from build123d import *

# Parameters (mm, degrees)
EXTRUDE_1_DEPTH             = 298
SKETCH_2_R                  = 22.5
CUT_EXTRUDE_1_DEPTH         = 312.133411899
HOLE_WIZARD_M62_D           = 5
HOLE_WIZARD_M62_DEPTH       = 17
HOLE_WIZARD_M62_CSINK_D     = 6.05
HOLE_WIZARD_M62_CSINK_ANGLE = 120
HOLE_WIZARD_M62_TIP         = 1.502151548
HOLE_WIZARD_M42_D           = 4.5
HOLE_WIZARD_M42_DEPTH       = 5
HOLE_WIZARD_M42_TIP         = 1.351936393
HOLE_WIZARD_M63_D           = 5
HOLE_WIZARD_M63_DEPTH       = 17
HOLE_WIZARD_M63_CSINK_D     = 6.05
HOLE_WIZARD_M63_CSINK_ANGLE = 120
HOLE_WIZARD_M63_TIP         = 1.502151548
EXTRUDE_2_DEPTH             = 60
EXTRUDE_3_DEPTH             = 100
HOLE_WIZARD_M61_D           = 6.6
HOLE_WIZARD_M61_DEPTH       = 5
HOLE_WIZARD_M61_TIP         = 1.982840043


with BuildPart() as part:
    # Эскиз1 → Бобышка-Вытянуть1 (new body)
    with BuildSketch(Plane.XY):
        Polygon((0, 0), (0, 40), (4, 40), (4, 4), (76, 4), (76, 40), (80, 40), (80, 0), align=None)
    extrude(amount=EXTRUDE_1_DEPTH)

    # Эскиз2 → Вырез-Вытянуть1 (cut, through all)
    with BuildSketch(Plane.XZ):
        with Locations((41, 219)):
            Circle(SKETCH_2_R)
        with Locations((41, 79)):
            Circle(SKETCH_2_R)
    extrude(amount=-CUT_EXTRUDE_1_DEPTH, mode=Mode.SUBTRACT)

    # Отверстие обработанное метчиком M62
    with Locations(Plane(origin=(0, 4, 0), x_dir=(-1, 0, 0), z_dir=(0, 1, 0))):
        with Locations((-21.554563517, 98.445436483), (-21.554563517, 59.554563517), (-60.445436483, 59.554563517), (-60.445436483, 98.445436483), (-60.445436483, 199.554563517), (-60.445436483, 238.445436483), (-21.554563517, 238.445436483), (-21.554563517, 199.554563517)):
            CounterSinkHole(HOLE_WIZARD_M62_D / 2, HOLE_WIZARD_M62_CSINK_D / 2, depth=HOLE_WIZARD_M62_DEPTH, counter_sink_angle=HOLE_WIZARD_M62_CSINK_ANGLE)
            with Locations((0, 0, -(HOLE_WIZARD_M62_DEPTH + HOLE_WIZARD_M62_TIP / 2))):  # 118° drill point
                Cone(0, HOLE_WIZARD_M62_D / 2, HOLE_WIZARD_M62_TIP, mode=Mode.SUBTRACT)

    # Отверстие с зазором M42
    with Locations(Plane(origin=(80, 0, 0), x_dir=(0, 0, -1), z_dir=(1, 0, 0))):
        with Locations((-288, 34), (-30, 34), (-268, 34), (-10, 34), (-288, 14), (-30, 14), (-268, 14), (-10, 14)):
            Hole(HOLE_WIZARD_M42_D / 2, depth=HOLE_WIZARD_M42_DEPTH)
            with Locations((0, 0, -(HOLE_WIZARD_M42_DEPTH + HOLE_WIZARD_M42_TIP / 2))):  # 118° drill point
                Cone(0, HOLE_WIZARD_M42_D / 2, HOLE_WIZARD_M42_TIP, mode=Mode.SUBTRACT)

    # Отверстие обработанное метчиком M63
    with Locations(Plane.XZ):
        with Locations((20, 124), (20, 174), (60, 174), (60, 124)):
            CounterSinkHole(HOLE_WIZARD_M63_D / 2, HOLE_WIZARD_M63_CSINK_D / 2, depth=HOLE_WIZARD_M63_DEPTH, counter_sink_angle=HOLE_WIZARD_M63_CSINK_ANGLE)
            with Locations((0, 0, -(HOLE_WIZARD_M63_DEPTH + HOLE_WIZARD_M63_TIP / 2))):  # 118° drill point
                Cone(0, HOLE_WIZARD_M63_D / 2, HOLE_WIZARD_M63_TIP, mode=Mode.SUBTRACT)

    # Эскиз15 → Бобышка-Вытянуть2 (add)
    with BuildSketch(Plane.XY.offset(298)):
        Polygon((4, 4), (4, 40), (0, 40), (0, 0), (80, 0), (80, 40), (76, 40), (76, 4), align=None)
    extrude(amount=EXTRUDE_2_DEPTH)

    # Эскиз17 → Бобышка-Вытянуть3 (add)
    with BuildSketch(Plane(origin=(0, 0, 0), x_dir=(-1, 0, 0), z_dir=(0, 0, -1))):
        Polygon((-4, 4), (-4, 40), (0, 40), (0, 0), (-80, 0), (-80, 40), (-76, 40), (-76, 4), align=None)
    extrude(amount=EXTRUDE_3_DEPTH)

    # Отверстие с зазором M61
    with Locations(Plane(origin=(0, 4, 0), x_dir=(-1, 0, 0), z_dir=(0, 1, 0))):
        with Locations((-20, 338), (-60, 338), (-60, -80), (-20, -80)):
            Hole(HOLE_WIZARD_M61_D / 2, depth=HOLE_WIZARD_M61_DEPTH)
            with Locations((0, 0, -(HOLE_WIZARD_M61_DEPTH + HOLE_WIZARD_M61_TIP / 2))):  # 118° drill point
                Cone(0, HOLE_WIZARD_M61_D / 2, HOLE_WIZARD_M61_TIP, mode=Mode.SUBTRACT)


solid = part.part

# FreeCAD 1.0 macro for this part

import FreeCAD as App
import Part
import Sketcher
from FreeCAD import Vector

doc = App.newDocument("Part")
params = doc.addObject("Spreadsheet::Sheet", "Params")
for row, (alias, value) in enumerate([
    ("sketch1_width", "80 mm"),
    ("sketch1_width2", "4 mm"),
    ("sketch1_height", "40 mm"),
    ("sketch1_height2", "36 mm"),
    ("pad1_length", "298 mm"),
    ("sketch2_diameter", "45 mm"),
    ("sketch3_diameter", "5 mm"),
    ("hole_diameter", "5 mm"),
    ("hole_depth", "17 mm"),
    ("hole_csink_diameter", "6.05 mm"),
    ("sketch4_diameter", "4.5 mm"),
    ("hole2_diameter", "4.5 mm"),
    ("hole2_depth", "5 mm"),
    ("sketch5_diameter", "5 mm"),
    ("hole3_diameter", "5 mm"),
    ("hole3_depth", "17 mm"),
    ("hole3_csink_diameter", "6.05 mm"),
    ("sketch6_width", "4 mm"),
    ("sketch6_width2", "80 mm"),
    ("sketch6_height", "36 mm"),
    ("sketch6_height2", "40 mm"),
    ("pad2_length", "60 mm"),
    ("sketch7_width", "72 mm"),
    ("sketch7_width2", "4 mm"),
    ("sketch7_height", "36 mm"),
    ("sketch7_height2", "40 mm"),
    ("pad3_length", "100 mm"),
    ("sketch8_diameter", "6.6 mm"),
    ("hole4_diameter", "6.6 mm"),
    ("hole4_depth", "5 mm"),
], start=1):
    params.set(f"A{row}", alias)
    params.set(f"B{row}", "=" + value)
    params.setAlias(f"B{row}", alias)

body = doc.addObject("PartDesign::Body", "Body")

sketch1 = doc.addObject("Sketcher::SketchObject", "Sketch")
body.addObject(sketch1)
sketch1.AttachmentSupport = (doc.XY_Plane, [""])
sketch1.MapMode = "FlatFace"
sketch1.addGeometry(Part.LineSegment(Vector(0, 40, 0), Vector(0, 0, 0)), False)
sketch1.addGeometry(Part.LineSegment(Vector(0, 0, 0), Vector(80, 0, 0)), False)
sketch1.addGeometry(Part.LineSegment(Vector(80, 0, 0), Vector(80, 40, 0)), False)
sketch1.addGeometry(Part.LineSegment(Vector(80, 40, 0), Vector(76, 40, 0)), False)
sketch1.addGeometry(Part.LineSegment(Vector(76, 40, 0), Vector(76, 4, 0)), False)
sketch1.addGeometry(Part.LineSegment(Vector(76, 4, 0), Vector(4, 4, 0)), False)
sketch1.addGeometry(Part.LineSegment(Vector(4, 4, 0), Vector(4, 40, 0)), False)
sketch1.addGeometry(Part.LineSegment(Vector(4, 40, 0), Vector(0, 40, 0)), False)
sketch1.addConstraint(Sketcher.Constraint("Coincident", 0, 2, 1, 1))
sketch1.addConstraint(Sketcher.Constraint("Coincident", 1, 2, 2, 1))
sketch1.addConstraint(Sketcher.Constraint("Coincident", 2, 2, 3, 1))
sketch1.addConstraint(Sketcher.Constraint("Coincident", 3, 2, 4, 1))
sketch1.addConstraint(Sketcher.Constraint("Coincident", 4, 2, 5, 1))
sketch1.addConstraint(Sketcher.Constraint("Coincident", 5, 2, 6, 1))
sketch1.addConstraint(Sketcher.Constraint("Coincident", 6, 2, 7, 1))
sketch1.addConstraint(Sketcher.Constraint("Coincident", 7, 2, 0, 1))
sketch1.addConstraint(Sketcher.Constraint("Vertical", 0))
sketch1.addConstraint(Sketcher.Constraint("Horizontal", 1))
sketch1.addConstraint(Sketcher.Constraint("Vertical", 2))
sketch1.addConstraint(Sketcher.Constraint("Horizontal", 3))
sketch1.addConstraint(Sketcher.Constraint("Vertical", 4))
sketch1.addConstraint(Sketcher.Constraint("Horizontal", 5))
sketch1.addConstraint(Sketcher.Constraint("Vertical", 6))
sketch1.addConstraint(Sketcher.Constraint("Horizontal", 7))
sketch1.addConstraint(Sketcher.Constraint("Coincident", 0, 2, -1, 1))
sketch1.addConstraint(Sketcher.Constraint("Horizontal", 3, 2, 6, 2))
sketch1.addConstraint(Sketcher.Constraint("Equal", 3, 7))
sketch1.addConstraint(Sketcher.Constraint("DistanceX", 1, 1, 1, 2, 80.0))
sketch1.addConstraint(Sketcher.Constraint("DistanceX", 3, 2, 3, 1, 4.0))
sketch1.addConstraint(Sketcher.Constraint("DistanceY", 0, 2, 0, 1, 40.0))
sketch1.addConstraint(Sketcher.Constraint("DistanceY", 4, 2, 4, 1, 36.0))
sketch1.setExpression("Constraints[19]", "Params.sketch1_width")
sketch1.setExpression("Constraints[20]", "Params.sketch1_width2")
sketch1.setExpression("Constraints[21]", "Params.sketch1_height")
sketch1.setExpression("Constraints[22]", "Params.sketch1_height2")
pad1 = doc.addObject("PartDesign::Pad", "Pad")
body.addObject(pad1)
pad1.Profile = sketch1
pad1.setExpression("Length", "Params.pad1_length")

sketch2 = doc.addObject("Sketcher::SketchObject", "Sketch001")
body.addObject(sketch2)
sketch2.AttachmentSupport = (doc.XZ_Plane, [""])
sketch2.MapMode = "FlatFace"
sketch2.addGeometry(Part.Circle(Vector(41, 219, 0), Vector(0, 0, 1), 22), False)
sketch2.addGeometry(Part.Circle(Vector(41, 79, 0), Vector(0, 0, 1), 22), False)
sketch2.addConstraint(Sketcher.Constraint("Equal", 0, 1))
sketch2.addConstraint(Sketcher.Constraint("Vertical", 0, 3, 1, 3))
sketch2.addConstraint(Sketcher.Constraint("Diameter", 0, 45.0))
sketch2.addConstraint(Sketcher.Constraint("DistanceX", -1, 1, 0, 3, 41.0))
sketch2.addConstraint(Sketcher.Constraint("DistanceY", -1, 1, 0, 3, 219.0))
sketch2.addConstraint(Sketcher.Constraint("DistanceY", -1, 1, 1, 3, 79.0))
sketch2.setExpression("Constraints[2]", "Params.sketch2_diameter")
pocket1 = doc.addObject("PartDesign::Pocket", "Pocket")
body.addObject(pocket1)
pocket1.Profile = sketch2
pocket1.Type = "ThroughAll"

sketch3 = doc.addObject("Sketcher::SketchObject", "Sketch002")
body.addObject(sketch3)
sketch3.AttachmentSupport = (doc.XZ_Plane, [""])
sketch3.MapMode = "FlatFace"
sketch3.AttachmentOffset = App.Placement(Vector(0, 0, -4), App.Rotation())
sketch3.addGeometry(Part.Circle(Vector(21.6, 98.4, 0), Vector(0, 0, 1), 2.5), False)
sketch3.addGeometry(Part.Circle(Vector(21.6, 59.6, 0), Vector(0, 0, 1), 2.5), False)
sketch3.addGeometry(Part.Circle(Vector(60.4, 59.6, 0), Vector(0, 0, 1), 2.5), False)
sketch3.addGeometry(Part.Circle(Vector(60.4, 98.4, 0), Vector(0, 0, 1), 2.5), False)
sketch3.addGeometry(Part.Circle(Vector(60.4, 199.6, 0), Vector(0, 0, 1), 2.5), False)
sketch3.addGeometry(Part.Circle(Vector(60.4, 238.4, 0), Vector(0, 0, 1), 2.5), False)
sketch3.addGeometry(Part.Circle(Vector(21.6, 238.4, 0), Vector(0, 0, 1), 2.5), False)
sketch3.addGeometry(Part.Circle(Vector(21.6, 199.6, 0), Vector(0, 0, 1), 2.5), False)
sketch3.addConstraint(Sketcher.Constraint("Equal", 0, 1))
sketch3.addConstraint(Sketcher.Constraint("Equal", 1, 2))
sketch3.addConstraint(Sketcher.Constraint("Equal", 2, 3))
sketch3.addConstraint(Sketcher.Constraint("Equal", 3, 4))
sketch3.addConstraint(Sketcher.Constraint("Equal", 4, 5))
sketch3.addConstraint(Sketcher.Constraint("Equal", 5, 6))
sketch3.addConstraint(Sketcher.Constraint("Equal", 6, 7))
sketch3.addConstraint(Sketcher.Constraint("Horizontal", 1, 3, 2, 3))
sketch3.addConstraint(Sketcher.Constraint("Horizontal", 0, 3, 3, 3))
sketch3.addConstraint(Sketcher.Constraint("Horizontal", 5, 3, 6, 3))
sketch3.addConstraint(Sketcher.Constraint("Horizontal", 4, 3, 7, 3))
sketch3.addConstraint(Sketcher.Constraint("Vertical", 0, 3, 1, 3))
sketch3.addConstraint(Sketcher.Constraint("Vertical", 2, 3, 3, 3))
sketch3.addConstraint(Sketcher.Constraint("Vertical", 3, 3, 4, 3))
sketch3.addConstraint(Sketcher.Constraint("Vertical", 4, 3, 5, 3))
sketch3.addConstraint(Sketcher.Constraint("Vertical", 1, 3, 6, 3))
sketch3.addConstraint(Sketcher.Constraint("Vertical", 6, 3, 7, 3))
sketch3.addConstraint(Sketcher.Constraint("Diameter", 0, 5.0))
sketch3.addConstraint(Sketcher.Constraint("DistanceY", 2, 3, 4, 3, 140.0))
sketch3.addConstraint(Sketcher.Constraint("DistanceY", 3, 3, 5, 3, 140.0))
sketch3.addConstraint(Sketcher.Constraint("DistanceX", -1, 1, 0, 3, 21.554564))
sketch3.addConstraint(Sketcher.Constraint("DistanceY", -1, 1, 0, 3, 98.445436))
sketch3.addConstraint(Sketcher.Constraint("DistanceY", -1, 1, 1, 3, 59.554564))
sketch3.addConstraint(Sketcher.Constraint("DistanceX", -1, 1, 2, 3, 60.445436))
sketch3.setExpression("Constraints[17]", "Params.sketch3_diameter")
doc.recompute()
hole = doc.addObject("PartDesign::Hole", "Hole")
body.addObject(hole)
hole.Profile = sketch3
hole.ThreadType = "None"
hole.setExpression("Diameter", "Params.hole_diameter")
hole.DepthType = "Dimension"
hole.setExpression("Depth", "Params.hole_depth")
hole.DrillPoint = "Angled"
hole.DrillPointAngle = 118
hole.HoleCutType = "Countersink"
hole.setExpression("HoleCutDiameter", "Params.hole_csink_diameter")
hole.HoleCutCountersinkAngle = 120
hole.Reversed = True

sketch4 = doc.addObject("Sketcher::SketchObject", "Sketch003")
body.addObject(sketch4)
sketch4.AttachmentSupport = (doc.YZ_Plane, [""])
sketch4.MapMode = "FlatFace"
sketch4.AttachmentOffset = App.Placement(Vector(0, 0, 80), App.Rotation())
sketch4.addGeometry(Part.Circle(Vector(34, 288, 0), Vector(0, 0, 1), 2.2), False)
sketch4.addGeometry(Part.Circle(Vector(34, 30, 0), Vector(0, 0, 1), 2.2), False)
sketch4.addGeometry(Part.Circle(Vector(34, 268, 0), Vector(0, 0, 1), 2.2), False)
sketch4.addGeometry(Part.Circle(Vector(34, 10, 0), Vector(0, 0, 1), 2.2), False)
sketch4.addGeometry(Part.Circle(Vector(14, 288, 0), Vector(0, 0, 1), 2.2), False)
sketch4.addGeometry(Part.Circle(Vector(14, 30, 0), Vector(0, 0, 1), 2.2), False)
sketch4.addGeometry(Part.Circle(Vector(14, 268, 0), Vector(0, 0, 1), 2.2), False)
sketch4.addGeometry(Part.Circle(Vector(14, 10, 0), Vector(0, 0, 1), 2.2), False)
sketch4.addConstraint(Sketcher.Constraint("Equal", 0, 1))
sketch4.addConstraint(Sketcher.Constraint("Equal", 1, 2))
sketch4.addConstraint(Sketcher.Constraint("Equal", 2, 3))
sketch4.addConstraint(Sketcher.Constraint("Equal", 3, 4))
sketch4.addConstraint(Sketcher.Constraint("Equal", 4, 5))
sketch4.addConstraint(Sketcher.Constraint("Equal", 5, 6))
sketch4.addConstraint(Sketcher.Constraint("Equal", 6, 7))
sketch4.addConstraint(Sketcher.Constraint("Horizontal", 0, 3, 4, 3))
sketch4.addConstraint(Sketcher.Constraint("Horizontal", 1, 3, 5, 3))
sketch4.addConstraint(Sketcher.Constraint("Horizontal", 2, 3, 6, 3))
sketch4.addConstraint(Sketcher.Constraint("Horizontal", 3, 3, 7, 3))
sketch4.addConstraint(Sketcher.Constraint("Vertical", 0, 3, 1, 3))
sketch4.addConstraint(Sketcher.Constraint("Vertical", 1, 3, 2, 3))
sketch4.addConstraint(Sketcher.Constraint("Vertical", 2, 3, 3, 3))
sketch4.addConstraint(Sketcher.Constraint("Vertical", 4, 3, 5, 3))
sketch4.addConstraint(Sketcher.Constraint("Vertical", 5, 3, 6, 3))
sketch4.addConstraint(Sketcher.Constraint("Vertical", 6, 3, 7, 3))
sketch4.addConstraint(Sketcher.Constraint("Diameter", 0, 4.5))
sketch4.addConstraint(Sketcher.Constraint("DistanceX", -1, 1, 0, 3, 34.0))
sketch4.addConstraint(Sketcher.Constraint("DistanceY", -1, 1, 0, 3, 288.0))
sketch4.addConstraint(Sketcher.Constraint("DistanceY", -1, 1, 1, 3, 30.0))
sketch4.addConstraint(Sketcher.Constraint("DistanceY", -1, 1, 2, 3, 268.0))
sketch4.addConstraint(Sketcher.Constraint("DistanceY", -1, 1, 3, 3, 10.0))
sketch4.addConstraint(Sketcher.Constraint("DistanceX", -1, 1, 4, 3, 14.0))
sketch4.setExpression("Constraints[17]", "Params.sketch4_diameter")
doc.recompute()
hole2 = doc.addObject("PartDesign::Hole", "Hole001")
body.addObject(hole2)
hole2.Profile = sketch4
hole2.ThreadType = "None"
hole2.setExpression("Diameter", "Params.hole2_diameter")
hole2.DepthType = "Dimension"
hole2.setExpression("Depth", "Params.hole2_depth")
hole2.DrillPoint = "Angled"
hole2.DrillPointAngle = 118

sketch5 = doc.addObject("Sketcher::SketchObject", "Sketch004")
body.addObject(sketch5)
sketch5.AttachmentSupport = (doc.XZ_Plane, [""])
sketch5.MapMode = "FlatFace"
sketch5.addGeometry(Part.Circle(Vector(20, 124, 0), Vector(0, 0, 1), 2.5), False)
sketch5.addGeometry(Part.Circle(Vector(20, 174, 0), Vector(0, 0, 1), 2.5), False)
sketch5.addGeometry(Part.Circle(Vector(60, 174, 0), Vector(0, 0, 1), 2.5), False)
sketch5.addGeometry(Part.Circle(Vector(60, 124, 0), Vector(0, 0, 1), 2.5), False)
sketch5.addConstraint(Sketcher.Constraint("Equal", 0, 1))
sketch5.addConstraint(Sketcher.Constraint("Equal", 1, 2))
sketch5.addConstraint(Sketcher.Constraint("Equal", 2, 3))
sketch5.addConstraint(Sketcher.Constraint("Horizontal", 1, 3, 2, 3))
sketch5.addConstraint(Sketcher.Constraint("Horizontal", 0, 3, 3, 3))
sketch5.addConstraint(Sketcher.Constraint("Vertical", 0, 3, 1, 3))
sketch5.addConstraint(Sketcher.Constraint("Vertical", 2, 3, 3, 3))
sketch5.addConstraint(Sketcher.Constraint("Diameter", 0, 5.0))
sketch5.addConstraint(Sketcher.Constraint("DistanceX", -1, 1, 0, 3, 20.0))
sketch5.addConstraint(Sketcher.Constraint("DistanceY", -1, 1, 0, 3, 124.0))
sketch5.addConstraint(Sketcher.Constraint("DistanceY", -1, 1, 1, 3, 174.0))
sketch5.addConstraint(Sketcher.Constraint("DistanceX", -1, 1, 2, 3, 60.0))
sketch5.setExpression("Constraints[7]", "Params.sketch5_diameter")
doc.recompute()
hole3 = doc.addObject("PartDesign::Hole", "Hole002")
body.addObject(hole3)
hole3.Profile = sketch5
hole3.ThreadType = "None"
hole3.setExpression("Diameter", "Params.hole3_diameter")
hole3.DepthType = "Dimension"
hole3.setExpression("Depth", "Params.hole3_depth")
hole3.DrillPoint = "Angled"
hole3.DrillPointAngle = 118
hole3.HoleCutType = "Countersink"
hole3.setExpression("HoleCutDiameter", "Params.hole3_csink_diameter")
hole3.HoleCutCountersinkAngle = 120

sketch6 = doc.addObject("Sketcher::SketchObject", "Sketch005")
body.addObject(sketch6)
sketch6.AttachmentSupport = (doc.XY_Plane, [""])
sketch6.MapMode = "FlatFace"
sketch6.AttachmentOffset = App.Placement(Vector(0, 0, 298), App.Rotation())
sketch6.addGeometry(Part.LineSegment(Vector(4, 4, 0), Vector(4, 40, 0)), False)
sketch6.addGeometry(Part.LineSegment(Vector(4, 40, 0), Vector(0, 40, 0)), False)
sketch6.addGeometry(Part.LineSegment(Vector(0, 40, 0), Vector(0, 0, 0)), False)
sketch6.addGeometry(Part.LineSegment(Vector(0, 0, 0), Vector(80, 0, 0)), False)
sketch6.addGeometry(Part.LineSegment(Vector(80, 0, 0), Vector(80, 40, 0)), False)
sketch6.addGeometry(Part.LineSegment(Vector(80, 40, 0), Vector(76, 40, 0)), False)
sketch6.addGeometry(Part.LineSegment(Vector(76, 40, 0), Vector(76, 4, 0)), False)
sketch6.addGeometry(Part.LineSegment(Vector(76, 4, 0), Vector(4, 4, 0)), False)
sketch6.addConstraint(Sketcher.Constraint("Coincident", 0, 2, 1, 1))
sketch6.addConstraint(Sketcher.Constraint("Coincident", 1, 2, 2, 1))
sketch6.addConstraint(Sketcher.Constraint("Coincident", 2, 2, 3, 1))
sketch6.addConstraint(Sketcher.Constraint("Coincident", 3, 2, 4, 1))
sketch6.addConstraint(Sketcher.Constraint("Coincident", 4, 2, 5, 1))
sketch6.addConstraint(Sketcher.Constraint("Coincident", 5, 2, 6, 1))
sketch6.addConstraint(Sketcher.Constraint("Coincident", 6, 2, 7, 1))
sketch6.addConstraint(Sketcher.Constraint("Coincident", 7, 2, 0, 1))
sketch6.addConstraint(Sketcher.Constraint("Vertical", 0))
sketch6.addConstraint(Sketcher.Constraint("Horizontal", 1))
sketch6.addConstraint(Sketcher.Constraint("Vertical", 2))
sketch6.addConstraint(Sketcher.Constraint("Horizontal", 3))
sketch6.addConstraint(Sketcher.Constraint("Vertical", 4))
sketch6.addConstraint(Sketcher.Constraint("Horizontal", 5))
sketch6.addConstraint(Sketcher.Constraint("Vertical", 6))
sketch6.addConstraint(Sketcher.Constraint("Horizontal", 7))
sketch6.addConstraint(Sketcher.Constraint("Coincident", 2, 2, -1, 1))
sketch6.addConstraint(Sketcher.Constraint("Horizontal", 1, 2, 4, 2))
sketch6.addConstraint(Sketcher.Constraint("Equal", 1, 5))
sketch6.addConstraint(Sketcher.Constraint("DistanceX", 1, 2, 1, 1, 4.0))
sketch6.addConstraint(Sketcher.Constraint("DistanceX", 3, 1, 3, 2, 80.0))
sketch6.addConstraint(Sketcher.Constraint("DistanceY", 0, 1, 0, 2, 36.0))
sketch6.addConstraint(Sketcher.Constraint("DistanceY", 2, 2, 2, 1, 40.0))
sketch6.setExpression("Constraints[19]", "Params.sketch6_width")
sketch6.setExpression("Constraints[20]", "Params.sketch6_width2")
sketch6.setExpression("Constraints[21]", "Params.sketch6_height")
sketch6.setExpression("Constraints[22]", "Params.sketch6_height2")
pad2 = doc.addObject("PartDesign::Pad", "Pad001")
body.addObject(pad2)
pad2.Profile = sketch6
pad2.setExpression("Length", "Params.pad2_length")

sketch7 = doc.addObject("Sketcher::SketchObject", "Sketch006")
body.addObject(sketch7)
sketch7.AttachmentSupport = (doc.XY_Plane, [""])
sketch7.MapMode = "FlatFace"
sketch7.addGeometry(Part.LineSegment(Vector(4, 40, 0), Vector(4, 4, 0)), False)
sketch7.addGeometry(Part.LineSegment(Vector(4, 4, 0), Vector(76, 4, 0)), False)
sketch7.addGeometry(Part.LineSegment(Vector(76, 4, 0), Vector(76, 40, 0)), False)
sketch7.addGeometry(Part.LineSegment(Vector(76, 40, 0), Vector(80, 40, 0)), False)
sketch7.addGeometry(Part.LineSegment(Vector(80, 40, 0), Vector(80, 0, 0)), False)
sketch7.addGeometry(Part.LineSegment(Vector(80, 0, 0), Vector(0, 0, 0)), False)
sketch7.addGeometry(Part.LineSegment(Vector(0, 0, 0), Vector(0, 40, 0)), False)
sketch7.addGeometry(Part.LineSegment(Vector(0, 40, 0), Vector(4, 40, 0)), False)
sketch7.addConstraint(Sketcher.Constraint("Coincident", 0, 2, 1, 1))
sketch7.addConstraint(Sketcher.Constraint("Coincident", 1, 2, 2, 1))
sketch7.addConstraint(Sketcher.Constraint("Coincident", 2, 2, 3, 1))
sketch7.addConstraint(Sketcher.Constraint("Coincident", 3, 2, 4, 1))
sketch7.addConstraint(Sketcher.Constraint("Coincident", 4, 2, 5, 1))
sketch7.addConstraint(Sketcher.Constraint("Coincident", 5, 2, 6, 1))
sketch7.addConstraint(Sketcher.Constraint("Coincident", 6, 2, 7, 1))
sketch7.addConstraint(Sketcher.Constraint("Coincident", 7, 2, 0, 1))
sketch7.addConstraint(Sketcher.Constraint("Vertical", 0))
sketch7.addConstraint(Sketcher.Constraint("Horizontal", 1))
sketch7.addConstraint(Sketcher.Constraint("Vertical", 2))
sketch7.addConstraint(Sketcher.Constraint("Horizontal", 3))
sketch7.addConstraint(Sketcher.Constraint("Vertical", 4))
sketch7.addConstraint(Sketcher.Constraint("Horizontal", 5))
sketch7.addConstraint(Sketcher.Constraint("Vertical", 6))
sketch7.addConstraint(Sketcher.Constraint("Horizontal", 7))
sketch7.addConstraint(Sketcher.Constraint("Coincident", 5, 2, -1, 1))
sketch7.addConstraint(Sketcher.Constraint("Horizontal", 3, 2, 6, 2))
sketch7.addConstraint(Sketcher.Constraint("Equal", 3, 7))
sketch7.addConstraint(Sketcher.Constraint("DistanceX", 1, 1, 1, 2, 72.0))
sketch7.addConstraint(Sketcher.Constraint("DistanceX", 3, 1, 3, 2, 4.0))
sketch7.addConstraint(Sketcher.Constraint("DistanceY", 0, 2, 0, 1, 36.0))
sketch7.addConstraint(Sketcher.Constraint("DistanceY", 4, 2, 4, 1, 40.0))
sketch7.setExpression("Constraints[19]", "Params.sketch7_width")
sketch7.setExpression("Constraints[20]", "Params.sketch7_width2")
sketch7.setExpression("Constraints[21]", "Params.sketch7_height")
sketch7.setExpression("Constraints[22]", "Params.sketch7_height2")
pad3 = doc.addObject("PartDesign::Pad", "Pad002")
body.addObject(pad3)
pad3.Profile = sketch7
pad3.setExpression("Length", "Params.pad3_length")
pad3.Reversed = True

sketch8 = doc.addObject("Sketcher::SketchObject", "Sketch007")
body.addObject(sketch8)
sketch8.AttachmentSupport = (doc.XZ_Plane, [""])
sketch8.MapMode = "FlatFace"
sketch8.AttachmentOffset = App.Placement(Vector(0, 0, -4), App.Rotation())
sketch8.addGeometry(Part.Circle(Vector(20, 338, 0), Vector(0, 0, 1), 3.3), False)
sketch8.addGeometry(Part.Circle(Vector(60, 338, 0), Vector(0, 0, 1), 3.3), False)
sketch8.addGeometry(Part.Circle(Vector(60, -80, 0), Vector(0, 0, 1), 3.3), False)
sketch8.addGeometry(Part.Circle(Vector(20, -80, 0), Vector(0, 0, 1), 3.3), False)
sketch8.addConstraint(Sketcher.Constraint("Equal", 0, 1))
sketch8.addConstraint(Sketcher.Constraint("Equal", 1, 2))
sketch8.addConstraint(Sketcher.Constraint("Equal", 2, 3))
sketch8.addConstraint(Sketcher.Constraint("Horizontal", 0, 3, 1, 3))
sketch8.addConstraint(Sketcher.Constraint("Horizontal", 2, 3, 3, 3))
sketch8.addConstraint(Sketcher.Constraint("Vertical", 1, 3, 2, 3))
sketch8.addConstraint(Sketcher.Constraint("Vertical", 0, 3, 3, 3))
sketch8.addConstraint(Sketcher.Constraint("Diameter", 0, 6.6))
sketch8.addConstraint(Sketcher.Constraint("DistanceX", -1, 1, 0, 3, 20.0))
sketch8.addConstraint(Sketcher.Constraint("DistanceY", -1, 1, 0, 3, 338.0))
sketch8.addConstraint(Sketcher.Constraint("DistanceX", -1, 1, 1, 3, 60.0))
sketch8.addConstraint(Sketcher.Constraint("DistanceY", 2, 3, -1, 1, 80.0))
sketch8.setExpression("Constraints[7]", "Params.sketch8_diameter")
doc.recompute()
hole4 = doc.addObject("PartDesign::Hole", "Hole003")
body.addObject(hole4)
hole4.Profile = sketch8
hole4.ThreadType = "None"
hole4.setExpression("Diameter", "Params.hole4_diameter")
hole4.DepthType = "Dimension"
hole4.setExpression("Depth", "Params.hole4_depth")
hole4.DrillPoint = "Angled"
hole4.DrillPointAngle = 118
hole4.Reversed = True

doc.recompute()
